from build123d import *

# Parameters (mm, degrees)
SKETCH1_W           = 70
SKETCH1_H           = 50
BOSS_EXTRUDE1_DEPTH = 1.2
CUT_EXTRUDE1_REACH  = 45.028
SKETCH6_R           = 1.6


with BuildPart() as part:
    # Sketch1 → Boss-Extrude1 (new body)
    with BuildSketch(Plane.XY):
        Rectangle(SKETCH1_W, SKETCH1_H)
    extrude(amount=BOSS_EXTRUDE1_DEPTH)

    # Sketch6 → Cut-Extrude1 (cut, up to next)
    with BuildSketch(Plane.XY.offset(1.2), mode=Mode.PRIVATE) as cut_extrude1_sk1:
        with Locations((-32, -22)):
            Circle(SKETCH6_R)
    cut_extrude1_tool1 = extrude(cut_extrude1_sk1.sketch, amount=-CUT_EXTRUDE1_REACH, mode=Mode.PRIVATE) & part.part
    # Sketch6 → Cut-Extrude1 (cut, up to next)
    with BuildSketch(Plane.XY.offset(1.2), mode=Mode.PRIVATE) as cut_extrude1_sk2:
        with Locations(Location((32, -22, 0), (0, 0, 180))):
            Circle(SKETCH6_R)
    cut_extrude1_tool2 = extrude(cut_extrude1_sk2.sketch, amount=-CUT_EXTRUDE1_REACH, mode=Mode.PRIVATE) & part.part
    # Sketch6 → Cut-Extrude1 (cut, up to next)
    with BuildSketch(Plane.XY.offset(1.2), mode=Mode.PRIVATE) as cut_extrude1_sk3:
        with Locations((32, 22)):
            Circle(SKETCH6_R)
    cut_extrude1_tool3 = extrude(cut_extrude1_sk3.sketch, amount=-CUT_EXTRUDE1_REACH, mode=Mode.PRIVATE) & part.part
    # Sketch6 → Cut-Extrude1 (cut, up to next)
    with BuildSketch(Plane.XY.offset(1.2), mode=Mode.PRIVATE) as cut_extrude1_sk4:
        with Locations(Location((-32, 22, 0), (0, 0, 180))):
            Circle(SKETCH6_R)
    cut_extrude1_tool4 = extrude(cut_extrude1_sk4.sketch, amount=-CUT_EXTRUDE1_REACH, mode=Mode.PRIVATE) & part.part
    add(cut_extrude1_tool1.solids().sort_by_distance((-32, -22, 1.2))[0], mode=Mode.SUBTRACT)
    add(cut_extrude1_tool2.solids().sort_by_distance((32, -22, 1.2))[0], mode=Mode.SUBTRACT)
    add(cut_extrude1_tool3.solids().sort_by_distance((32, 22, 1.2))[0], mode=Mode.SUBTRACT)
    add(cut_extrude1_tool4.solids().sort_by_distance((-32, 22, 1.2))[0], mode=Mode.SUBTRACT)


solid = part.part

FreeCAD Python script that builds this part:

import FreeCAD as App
import Part
import Sketcher
from FreeCAD import Vector
Q = App.Units.Quantity

doc = App.newDocument("Part")
body = doc.addObject("PartDesign::Body", "Body")

# Sketch on XY plane
sketch1 = body.newObject("Sketcher::SketchObject", "Sketch")
sketch1.AttachmentSupport = (doc.getObject("XY_Plane"), [""])
sketch1.MapMode = "FlatFace"
sketch1.addGeometry(Part.LineSegment(Vector(-35, 25, 0), Vector(-35, -25, 0)), False)
sketch1.addGeometry(Part.LineSegment(Vector(-35, -25, 0), Vector(35, -25, 0)), False)
sketch1.addGeometry(Part.LineSegment(Vector(35, -25, 0), Vector(35, 25, 0)), False)
sketch1.addGeometry(Part.LineSegment(Vector(35, 25, 0), Vector(-35, 25, 0)), False)
sketch1.addConstraint(Sketcher.Constraint("Coincident", 0, 2, 1, 1))
sketch1.addConstraint(Sketcher.Constraint("Coincident", 1, 2, 2, 1))
sketch1.addConstraint(Sketcher.Constraint("Coincident", 2, 2, 3, 1))
sketch1.addConstraint(Sketcher.Constraint("Coincident", 3, 2, 0, 1))
sketch1.addConstraint(Sketcher.Constraint("Vertical", 0))
sketch1.addConstraint(Sketcher.Constraint("Horizontal", 1))
sketch1.addConstraint(Sketcher.Constraint("Vertical", 2))
sketch1.addConstraint(Sketcher.Constraint("Horizontal", 3))
sketch1.addConstraint(Sketcher.Constraint("Symmetric", 0, 2, 2, 2, -1, 1))
sketch1.addConstraint(Sketcher.Constraint("DistanceX", 1, 1, 1, 2, Q("70 mm")))
sketch1.addConstraint(Sketcher.Constraint("DistanceY", 0, 2, 0, 1, Q("50 mm")))
pad1 = body.newObject("PartDesign::Pad", "Pad")
pad1.Profile = sketch1
pad1.Length = 1.2

# Sketch on XY plane
sketch2 = body.newObject("Sketcher::SketchObject", "Sketch001")
sketch2.AttachmentSupport = (doc.getObject("XY_Plane"), [""])
sketch2.MapMode = "FlatFace"
sketch2.AttachmentOffset = App.Placement(Vector(0, 0, 1.2), App.Rotation())
sketch2.addGeometry(Part.Circle(Vector(-32, -22, 0), Vector(0, 0, 1), 1.6), False)
sketch2.addConstraint(Sketcher.Constraint("Diameter", 0, Q("3.2 mm")))
sketch2.addConstraint(Sketcher.Constraint("DistanceX", 0, 3, -1, 1, Q("32 mm")))
sketch2.addConstraint(Sketcher.Constraint("DistanceY", 0, 3, -1, 1, Q("22 mm")))
pocket1 = body.newObject("PartDesign::Pocket", "Pocket")
pocket1.Profile = sketch2
pocket1.Type = "UpToFirst"

# Sketch on XY plane
sketch3 = body.newObject("Sketcher::SketchObject", "Sketch002")
sketch3.AttachmentSupport = (doc.getObject("XY_Plane"), [""])
sketch3.MapMode = "FlatFace"
sketch3.AttachmentOffset = App.Placement(Vector(0, 0, 1.2), App.Rotation())
sketch3.addGeometry(Part.Circle(Vector(32, -22, 0), Vector(0, 0, 1), 1.6), False)
sketch3.addConstraint(Sketcher.Constraint("Diameter", 0, Q("3.2 mm")))
sketch3.addConstraint(Sketcher.Constraint("DistanceX", -1, 1, 0, 3, Q("32 mm")))
sketch3.addConstraint(Sketcher.Constraint("DistanceY", 0, 3, -1, 1, Q("22 mm")))
pocket2 = body.newObject("PartDesign::Pocket", "Pocket001")
pocket2.Profile = sketch3
pocket2.Type = "UpToFirst"

# Sketch on XY plane
sketch4 = body.newObject("Sketcher::SketchObject", "Sketch003")
sketch4.AttachmentSupport = (doc.getObject("XY_Plane"), [""])
sketch4.MapMode = "FlatFace"
sketch4.AttachmentOffset = App.Placement(Vector(0, 0, 1.2), App.Rotation())
sketch4.addGeometry(Part.Circle(Vector(32, 22, 0), Vector(0, 0, 1), 1.6), False)
sketch4.addConstraint(Sketcher.Constraint("Diameter", 0, Q("3.2 mm")))
sketch4.addConstraint(Sketcher.Constraint("DistanceX", -1, 1, 0, 3, Q("32 mm")))
sketch4.addConstraint(Sketcher.Constraint("DistanceY", -1, 1, 0, 3, Q("22 mm")))
pocket3 = body.newObject("PartDesign::Pocket", "Pocket002")
pocket3.Profile = sketch4
pocket3.Type = "UpToFirst"

# Sketch on XY plane
sketch5 = body.newObject("Sketcher::SketchObject", "Sketch004")
sketch5.AttachmentSupport = (doc.getObject("XY_Plane"), [""])
sketch5.MapMode = "FlatFace"
sketch5.AttachmentOffset = App.Placement(Vector(0, 0, 1.2), App.Rotation())
sketch5.addGeometry(Part.Circle(Vector(-32, 22, 0), Vector(0, 0, 1), 1.6), False)
sketch5.addConstraint(Sketcher.Constraint("Diameter", 0, Q("3.2 mm")))
sketch5.addConstraint(Sketcher.Constraint("DistanceX", 0, 3, -1, 1, Q("32 mm")))
sketch5.addConstraint(Sketcher.Constraint("DistanceY", -1, 1, 0, 3, Q("22 mm")))
pocket4 = body.newObject("PartDesign::Pocket", "Pocket003")
pocket4.Profile = sketch5
pocket4.Type = "UpToFirst"

doc.recompute()
